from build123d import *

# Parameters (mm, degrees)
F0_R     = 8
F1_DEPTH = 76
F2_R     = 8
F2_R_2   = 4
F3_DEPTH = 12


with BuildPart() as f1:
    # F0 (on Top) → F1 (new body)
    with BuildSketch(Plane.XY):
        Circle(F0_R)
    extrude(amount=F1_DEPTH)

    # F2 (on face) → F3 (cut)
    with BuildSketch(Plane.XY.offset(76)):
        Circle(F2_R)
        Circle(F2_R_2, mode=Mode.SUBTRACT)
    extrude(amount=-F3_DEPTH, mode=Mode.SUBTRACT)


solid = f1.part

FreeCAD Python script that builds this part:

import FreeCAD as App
import Part
import Sketcher

doc = App.newDocument("Part")
body = doc.addObject("PartDesign::Body", "Body")

sketch1 = body.newObject("Sketcher::SketchObject", "Sketch")
sketch1.AttachmentSupport = (doc.getObject("XY_Plane"), [""])
sketch1.MapMode = "FlatFace"
sketch1.addGeometry(Part.Circle(App.Vector(0, 0, 0), App.Vector(0, 0, 1), 8), False)
sketch1.addConstraint(Sketcher.Constraint("Coincident", 0, 3, -1, 1))
sketch1.addConstraint(Sketcher.Constraint("Diameter", 0, 16.0))
pad1 = body.newObject("PartDesign::Pad", "Pad")
pad1.Profile = sketch1
pad1.Length = 76

sketch2 = body.newObject("Sketcher::SketchObject", "Sketch001")
sketch2.AttachmentSupport = (doc.getObject("XY_Plane"), [""])
sketch2.MapMode = "FlatFace"
sketch2.AttachmentOffset = App.Placement(App.Vector(0, 0, 76), App.Rotation())
sketch2.addGeometry(Part.Circle(App.Vector(0, 0, 0), App.Vector(0, 0, 1), 8), False)
sketch2.addGeometry(Part.Circle(App.Vector(0, 0, 0), App.Vector(0, 0, 1), 4), False)
sketch2.addConstraint(Sketcher.Constraint("Coincident", 0, 3, -1, 1))
sketch2.addConstraint(Sketcher.Constraint("Coincident", 1, 3, -1, 1))
sketch2.addConstraint(Sketcher.Constraint("Diameter", 0, 16.0))
sketch2.addConstraint(Sketcher.Constraint("Diameter", 1, 8.0))
pocket1 = body.newObject("PartDesign::Pocket", "Pocket")
pocket1.Profile = sketch2
pocket1.Length = 12

doc.recompute()
